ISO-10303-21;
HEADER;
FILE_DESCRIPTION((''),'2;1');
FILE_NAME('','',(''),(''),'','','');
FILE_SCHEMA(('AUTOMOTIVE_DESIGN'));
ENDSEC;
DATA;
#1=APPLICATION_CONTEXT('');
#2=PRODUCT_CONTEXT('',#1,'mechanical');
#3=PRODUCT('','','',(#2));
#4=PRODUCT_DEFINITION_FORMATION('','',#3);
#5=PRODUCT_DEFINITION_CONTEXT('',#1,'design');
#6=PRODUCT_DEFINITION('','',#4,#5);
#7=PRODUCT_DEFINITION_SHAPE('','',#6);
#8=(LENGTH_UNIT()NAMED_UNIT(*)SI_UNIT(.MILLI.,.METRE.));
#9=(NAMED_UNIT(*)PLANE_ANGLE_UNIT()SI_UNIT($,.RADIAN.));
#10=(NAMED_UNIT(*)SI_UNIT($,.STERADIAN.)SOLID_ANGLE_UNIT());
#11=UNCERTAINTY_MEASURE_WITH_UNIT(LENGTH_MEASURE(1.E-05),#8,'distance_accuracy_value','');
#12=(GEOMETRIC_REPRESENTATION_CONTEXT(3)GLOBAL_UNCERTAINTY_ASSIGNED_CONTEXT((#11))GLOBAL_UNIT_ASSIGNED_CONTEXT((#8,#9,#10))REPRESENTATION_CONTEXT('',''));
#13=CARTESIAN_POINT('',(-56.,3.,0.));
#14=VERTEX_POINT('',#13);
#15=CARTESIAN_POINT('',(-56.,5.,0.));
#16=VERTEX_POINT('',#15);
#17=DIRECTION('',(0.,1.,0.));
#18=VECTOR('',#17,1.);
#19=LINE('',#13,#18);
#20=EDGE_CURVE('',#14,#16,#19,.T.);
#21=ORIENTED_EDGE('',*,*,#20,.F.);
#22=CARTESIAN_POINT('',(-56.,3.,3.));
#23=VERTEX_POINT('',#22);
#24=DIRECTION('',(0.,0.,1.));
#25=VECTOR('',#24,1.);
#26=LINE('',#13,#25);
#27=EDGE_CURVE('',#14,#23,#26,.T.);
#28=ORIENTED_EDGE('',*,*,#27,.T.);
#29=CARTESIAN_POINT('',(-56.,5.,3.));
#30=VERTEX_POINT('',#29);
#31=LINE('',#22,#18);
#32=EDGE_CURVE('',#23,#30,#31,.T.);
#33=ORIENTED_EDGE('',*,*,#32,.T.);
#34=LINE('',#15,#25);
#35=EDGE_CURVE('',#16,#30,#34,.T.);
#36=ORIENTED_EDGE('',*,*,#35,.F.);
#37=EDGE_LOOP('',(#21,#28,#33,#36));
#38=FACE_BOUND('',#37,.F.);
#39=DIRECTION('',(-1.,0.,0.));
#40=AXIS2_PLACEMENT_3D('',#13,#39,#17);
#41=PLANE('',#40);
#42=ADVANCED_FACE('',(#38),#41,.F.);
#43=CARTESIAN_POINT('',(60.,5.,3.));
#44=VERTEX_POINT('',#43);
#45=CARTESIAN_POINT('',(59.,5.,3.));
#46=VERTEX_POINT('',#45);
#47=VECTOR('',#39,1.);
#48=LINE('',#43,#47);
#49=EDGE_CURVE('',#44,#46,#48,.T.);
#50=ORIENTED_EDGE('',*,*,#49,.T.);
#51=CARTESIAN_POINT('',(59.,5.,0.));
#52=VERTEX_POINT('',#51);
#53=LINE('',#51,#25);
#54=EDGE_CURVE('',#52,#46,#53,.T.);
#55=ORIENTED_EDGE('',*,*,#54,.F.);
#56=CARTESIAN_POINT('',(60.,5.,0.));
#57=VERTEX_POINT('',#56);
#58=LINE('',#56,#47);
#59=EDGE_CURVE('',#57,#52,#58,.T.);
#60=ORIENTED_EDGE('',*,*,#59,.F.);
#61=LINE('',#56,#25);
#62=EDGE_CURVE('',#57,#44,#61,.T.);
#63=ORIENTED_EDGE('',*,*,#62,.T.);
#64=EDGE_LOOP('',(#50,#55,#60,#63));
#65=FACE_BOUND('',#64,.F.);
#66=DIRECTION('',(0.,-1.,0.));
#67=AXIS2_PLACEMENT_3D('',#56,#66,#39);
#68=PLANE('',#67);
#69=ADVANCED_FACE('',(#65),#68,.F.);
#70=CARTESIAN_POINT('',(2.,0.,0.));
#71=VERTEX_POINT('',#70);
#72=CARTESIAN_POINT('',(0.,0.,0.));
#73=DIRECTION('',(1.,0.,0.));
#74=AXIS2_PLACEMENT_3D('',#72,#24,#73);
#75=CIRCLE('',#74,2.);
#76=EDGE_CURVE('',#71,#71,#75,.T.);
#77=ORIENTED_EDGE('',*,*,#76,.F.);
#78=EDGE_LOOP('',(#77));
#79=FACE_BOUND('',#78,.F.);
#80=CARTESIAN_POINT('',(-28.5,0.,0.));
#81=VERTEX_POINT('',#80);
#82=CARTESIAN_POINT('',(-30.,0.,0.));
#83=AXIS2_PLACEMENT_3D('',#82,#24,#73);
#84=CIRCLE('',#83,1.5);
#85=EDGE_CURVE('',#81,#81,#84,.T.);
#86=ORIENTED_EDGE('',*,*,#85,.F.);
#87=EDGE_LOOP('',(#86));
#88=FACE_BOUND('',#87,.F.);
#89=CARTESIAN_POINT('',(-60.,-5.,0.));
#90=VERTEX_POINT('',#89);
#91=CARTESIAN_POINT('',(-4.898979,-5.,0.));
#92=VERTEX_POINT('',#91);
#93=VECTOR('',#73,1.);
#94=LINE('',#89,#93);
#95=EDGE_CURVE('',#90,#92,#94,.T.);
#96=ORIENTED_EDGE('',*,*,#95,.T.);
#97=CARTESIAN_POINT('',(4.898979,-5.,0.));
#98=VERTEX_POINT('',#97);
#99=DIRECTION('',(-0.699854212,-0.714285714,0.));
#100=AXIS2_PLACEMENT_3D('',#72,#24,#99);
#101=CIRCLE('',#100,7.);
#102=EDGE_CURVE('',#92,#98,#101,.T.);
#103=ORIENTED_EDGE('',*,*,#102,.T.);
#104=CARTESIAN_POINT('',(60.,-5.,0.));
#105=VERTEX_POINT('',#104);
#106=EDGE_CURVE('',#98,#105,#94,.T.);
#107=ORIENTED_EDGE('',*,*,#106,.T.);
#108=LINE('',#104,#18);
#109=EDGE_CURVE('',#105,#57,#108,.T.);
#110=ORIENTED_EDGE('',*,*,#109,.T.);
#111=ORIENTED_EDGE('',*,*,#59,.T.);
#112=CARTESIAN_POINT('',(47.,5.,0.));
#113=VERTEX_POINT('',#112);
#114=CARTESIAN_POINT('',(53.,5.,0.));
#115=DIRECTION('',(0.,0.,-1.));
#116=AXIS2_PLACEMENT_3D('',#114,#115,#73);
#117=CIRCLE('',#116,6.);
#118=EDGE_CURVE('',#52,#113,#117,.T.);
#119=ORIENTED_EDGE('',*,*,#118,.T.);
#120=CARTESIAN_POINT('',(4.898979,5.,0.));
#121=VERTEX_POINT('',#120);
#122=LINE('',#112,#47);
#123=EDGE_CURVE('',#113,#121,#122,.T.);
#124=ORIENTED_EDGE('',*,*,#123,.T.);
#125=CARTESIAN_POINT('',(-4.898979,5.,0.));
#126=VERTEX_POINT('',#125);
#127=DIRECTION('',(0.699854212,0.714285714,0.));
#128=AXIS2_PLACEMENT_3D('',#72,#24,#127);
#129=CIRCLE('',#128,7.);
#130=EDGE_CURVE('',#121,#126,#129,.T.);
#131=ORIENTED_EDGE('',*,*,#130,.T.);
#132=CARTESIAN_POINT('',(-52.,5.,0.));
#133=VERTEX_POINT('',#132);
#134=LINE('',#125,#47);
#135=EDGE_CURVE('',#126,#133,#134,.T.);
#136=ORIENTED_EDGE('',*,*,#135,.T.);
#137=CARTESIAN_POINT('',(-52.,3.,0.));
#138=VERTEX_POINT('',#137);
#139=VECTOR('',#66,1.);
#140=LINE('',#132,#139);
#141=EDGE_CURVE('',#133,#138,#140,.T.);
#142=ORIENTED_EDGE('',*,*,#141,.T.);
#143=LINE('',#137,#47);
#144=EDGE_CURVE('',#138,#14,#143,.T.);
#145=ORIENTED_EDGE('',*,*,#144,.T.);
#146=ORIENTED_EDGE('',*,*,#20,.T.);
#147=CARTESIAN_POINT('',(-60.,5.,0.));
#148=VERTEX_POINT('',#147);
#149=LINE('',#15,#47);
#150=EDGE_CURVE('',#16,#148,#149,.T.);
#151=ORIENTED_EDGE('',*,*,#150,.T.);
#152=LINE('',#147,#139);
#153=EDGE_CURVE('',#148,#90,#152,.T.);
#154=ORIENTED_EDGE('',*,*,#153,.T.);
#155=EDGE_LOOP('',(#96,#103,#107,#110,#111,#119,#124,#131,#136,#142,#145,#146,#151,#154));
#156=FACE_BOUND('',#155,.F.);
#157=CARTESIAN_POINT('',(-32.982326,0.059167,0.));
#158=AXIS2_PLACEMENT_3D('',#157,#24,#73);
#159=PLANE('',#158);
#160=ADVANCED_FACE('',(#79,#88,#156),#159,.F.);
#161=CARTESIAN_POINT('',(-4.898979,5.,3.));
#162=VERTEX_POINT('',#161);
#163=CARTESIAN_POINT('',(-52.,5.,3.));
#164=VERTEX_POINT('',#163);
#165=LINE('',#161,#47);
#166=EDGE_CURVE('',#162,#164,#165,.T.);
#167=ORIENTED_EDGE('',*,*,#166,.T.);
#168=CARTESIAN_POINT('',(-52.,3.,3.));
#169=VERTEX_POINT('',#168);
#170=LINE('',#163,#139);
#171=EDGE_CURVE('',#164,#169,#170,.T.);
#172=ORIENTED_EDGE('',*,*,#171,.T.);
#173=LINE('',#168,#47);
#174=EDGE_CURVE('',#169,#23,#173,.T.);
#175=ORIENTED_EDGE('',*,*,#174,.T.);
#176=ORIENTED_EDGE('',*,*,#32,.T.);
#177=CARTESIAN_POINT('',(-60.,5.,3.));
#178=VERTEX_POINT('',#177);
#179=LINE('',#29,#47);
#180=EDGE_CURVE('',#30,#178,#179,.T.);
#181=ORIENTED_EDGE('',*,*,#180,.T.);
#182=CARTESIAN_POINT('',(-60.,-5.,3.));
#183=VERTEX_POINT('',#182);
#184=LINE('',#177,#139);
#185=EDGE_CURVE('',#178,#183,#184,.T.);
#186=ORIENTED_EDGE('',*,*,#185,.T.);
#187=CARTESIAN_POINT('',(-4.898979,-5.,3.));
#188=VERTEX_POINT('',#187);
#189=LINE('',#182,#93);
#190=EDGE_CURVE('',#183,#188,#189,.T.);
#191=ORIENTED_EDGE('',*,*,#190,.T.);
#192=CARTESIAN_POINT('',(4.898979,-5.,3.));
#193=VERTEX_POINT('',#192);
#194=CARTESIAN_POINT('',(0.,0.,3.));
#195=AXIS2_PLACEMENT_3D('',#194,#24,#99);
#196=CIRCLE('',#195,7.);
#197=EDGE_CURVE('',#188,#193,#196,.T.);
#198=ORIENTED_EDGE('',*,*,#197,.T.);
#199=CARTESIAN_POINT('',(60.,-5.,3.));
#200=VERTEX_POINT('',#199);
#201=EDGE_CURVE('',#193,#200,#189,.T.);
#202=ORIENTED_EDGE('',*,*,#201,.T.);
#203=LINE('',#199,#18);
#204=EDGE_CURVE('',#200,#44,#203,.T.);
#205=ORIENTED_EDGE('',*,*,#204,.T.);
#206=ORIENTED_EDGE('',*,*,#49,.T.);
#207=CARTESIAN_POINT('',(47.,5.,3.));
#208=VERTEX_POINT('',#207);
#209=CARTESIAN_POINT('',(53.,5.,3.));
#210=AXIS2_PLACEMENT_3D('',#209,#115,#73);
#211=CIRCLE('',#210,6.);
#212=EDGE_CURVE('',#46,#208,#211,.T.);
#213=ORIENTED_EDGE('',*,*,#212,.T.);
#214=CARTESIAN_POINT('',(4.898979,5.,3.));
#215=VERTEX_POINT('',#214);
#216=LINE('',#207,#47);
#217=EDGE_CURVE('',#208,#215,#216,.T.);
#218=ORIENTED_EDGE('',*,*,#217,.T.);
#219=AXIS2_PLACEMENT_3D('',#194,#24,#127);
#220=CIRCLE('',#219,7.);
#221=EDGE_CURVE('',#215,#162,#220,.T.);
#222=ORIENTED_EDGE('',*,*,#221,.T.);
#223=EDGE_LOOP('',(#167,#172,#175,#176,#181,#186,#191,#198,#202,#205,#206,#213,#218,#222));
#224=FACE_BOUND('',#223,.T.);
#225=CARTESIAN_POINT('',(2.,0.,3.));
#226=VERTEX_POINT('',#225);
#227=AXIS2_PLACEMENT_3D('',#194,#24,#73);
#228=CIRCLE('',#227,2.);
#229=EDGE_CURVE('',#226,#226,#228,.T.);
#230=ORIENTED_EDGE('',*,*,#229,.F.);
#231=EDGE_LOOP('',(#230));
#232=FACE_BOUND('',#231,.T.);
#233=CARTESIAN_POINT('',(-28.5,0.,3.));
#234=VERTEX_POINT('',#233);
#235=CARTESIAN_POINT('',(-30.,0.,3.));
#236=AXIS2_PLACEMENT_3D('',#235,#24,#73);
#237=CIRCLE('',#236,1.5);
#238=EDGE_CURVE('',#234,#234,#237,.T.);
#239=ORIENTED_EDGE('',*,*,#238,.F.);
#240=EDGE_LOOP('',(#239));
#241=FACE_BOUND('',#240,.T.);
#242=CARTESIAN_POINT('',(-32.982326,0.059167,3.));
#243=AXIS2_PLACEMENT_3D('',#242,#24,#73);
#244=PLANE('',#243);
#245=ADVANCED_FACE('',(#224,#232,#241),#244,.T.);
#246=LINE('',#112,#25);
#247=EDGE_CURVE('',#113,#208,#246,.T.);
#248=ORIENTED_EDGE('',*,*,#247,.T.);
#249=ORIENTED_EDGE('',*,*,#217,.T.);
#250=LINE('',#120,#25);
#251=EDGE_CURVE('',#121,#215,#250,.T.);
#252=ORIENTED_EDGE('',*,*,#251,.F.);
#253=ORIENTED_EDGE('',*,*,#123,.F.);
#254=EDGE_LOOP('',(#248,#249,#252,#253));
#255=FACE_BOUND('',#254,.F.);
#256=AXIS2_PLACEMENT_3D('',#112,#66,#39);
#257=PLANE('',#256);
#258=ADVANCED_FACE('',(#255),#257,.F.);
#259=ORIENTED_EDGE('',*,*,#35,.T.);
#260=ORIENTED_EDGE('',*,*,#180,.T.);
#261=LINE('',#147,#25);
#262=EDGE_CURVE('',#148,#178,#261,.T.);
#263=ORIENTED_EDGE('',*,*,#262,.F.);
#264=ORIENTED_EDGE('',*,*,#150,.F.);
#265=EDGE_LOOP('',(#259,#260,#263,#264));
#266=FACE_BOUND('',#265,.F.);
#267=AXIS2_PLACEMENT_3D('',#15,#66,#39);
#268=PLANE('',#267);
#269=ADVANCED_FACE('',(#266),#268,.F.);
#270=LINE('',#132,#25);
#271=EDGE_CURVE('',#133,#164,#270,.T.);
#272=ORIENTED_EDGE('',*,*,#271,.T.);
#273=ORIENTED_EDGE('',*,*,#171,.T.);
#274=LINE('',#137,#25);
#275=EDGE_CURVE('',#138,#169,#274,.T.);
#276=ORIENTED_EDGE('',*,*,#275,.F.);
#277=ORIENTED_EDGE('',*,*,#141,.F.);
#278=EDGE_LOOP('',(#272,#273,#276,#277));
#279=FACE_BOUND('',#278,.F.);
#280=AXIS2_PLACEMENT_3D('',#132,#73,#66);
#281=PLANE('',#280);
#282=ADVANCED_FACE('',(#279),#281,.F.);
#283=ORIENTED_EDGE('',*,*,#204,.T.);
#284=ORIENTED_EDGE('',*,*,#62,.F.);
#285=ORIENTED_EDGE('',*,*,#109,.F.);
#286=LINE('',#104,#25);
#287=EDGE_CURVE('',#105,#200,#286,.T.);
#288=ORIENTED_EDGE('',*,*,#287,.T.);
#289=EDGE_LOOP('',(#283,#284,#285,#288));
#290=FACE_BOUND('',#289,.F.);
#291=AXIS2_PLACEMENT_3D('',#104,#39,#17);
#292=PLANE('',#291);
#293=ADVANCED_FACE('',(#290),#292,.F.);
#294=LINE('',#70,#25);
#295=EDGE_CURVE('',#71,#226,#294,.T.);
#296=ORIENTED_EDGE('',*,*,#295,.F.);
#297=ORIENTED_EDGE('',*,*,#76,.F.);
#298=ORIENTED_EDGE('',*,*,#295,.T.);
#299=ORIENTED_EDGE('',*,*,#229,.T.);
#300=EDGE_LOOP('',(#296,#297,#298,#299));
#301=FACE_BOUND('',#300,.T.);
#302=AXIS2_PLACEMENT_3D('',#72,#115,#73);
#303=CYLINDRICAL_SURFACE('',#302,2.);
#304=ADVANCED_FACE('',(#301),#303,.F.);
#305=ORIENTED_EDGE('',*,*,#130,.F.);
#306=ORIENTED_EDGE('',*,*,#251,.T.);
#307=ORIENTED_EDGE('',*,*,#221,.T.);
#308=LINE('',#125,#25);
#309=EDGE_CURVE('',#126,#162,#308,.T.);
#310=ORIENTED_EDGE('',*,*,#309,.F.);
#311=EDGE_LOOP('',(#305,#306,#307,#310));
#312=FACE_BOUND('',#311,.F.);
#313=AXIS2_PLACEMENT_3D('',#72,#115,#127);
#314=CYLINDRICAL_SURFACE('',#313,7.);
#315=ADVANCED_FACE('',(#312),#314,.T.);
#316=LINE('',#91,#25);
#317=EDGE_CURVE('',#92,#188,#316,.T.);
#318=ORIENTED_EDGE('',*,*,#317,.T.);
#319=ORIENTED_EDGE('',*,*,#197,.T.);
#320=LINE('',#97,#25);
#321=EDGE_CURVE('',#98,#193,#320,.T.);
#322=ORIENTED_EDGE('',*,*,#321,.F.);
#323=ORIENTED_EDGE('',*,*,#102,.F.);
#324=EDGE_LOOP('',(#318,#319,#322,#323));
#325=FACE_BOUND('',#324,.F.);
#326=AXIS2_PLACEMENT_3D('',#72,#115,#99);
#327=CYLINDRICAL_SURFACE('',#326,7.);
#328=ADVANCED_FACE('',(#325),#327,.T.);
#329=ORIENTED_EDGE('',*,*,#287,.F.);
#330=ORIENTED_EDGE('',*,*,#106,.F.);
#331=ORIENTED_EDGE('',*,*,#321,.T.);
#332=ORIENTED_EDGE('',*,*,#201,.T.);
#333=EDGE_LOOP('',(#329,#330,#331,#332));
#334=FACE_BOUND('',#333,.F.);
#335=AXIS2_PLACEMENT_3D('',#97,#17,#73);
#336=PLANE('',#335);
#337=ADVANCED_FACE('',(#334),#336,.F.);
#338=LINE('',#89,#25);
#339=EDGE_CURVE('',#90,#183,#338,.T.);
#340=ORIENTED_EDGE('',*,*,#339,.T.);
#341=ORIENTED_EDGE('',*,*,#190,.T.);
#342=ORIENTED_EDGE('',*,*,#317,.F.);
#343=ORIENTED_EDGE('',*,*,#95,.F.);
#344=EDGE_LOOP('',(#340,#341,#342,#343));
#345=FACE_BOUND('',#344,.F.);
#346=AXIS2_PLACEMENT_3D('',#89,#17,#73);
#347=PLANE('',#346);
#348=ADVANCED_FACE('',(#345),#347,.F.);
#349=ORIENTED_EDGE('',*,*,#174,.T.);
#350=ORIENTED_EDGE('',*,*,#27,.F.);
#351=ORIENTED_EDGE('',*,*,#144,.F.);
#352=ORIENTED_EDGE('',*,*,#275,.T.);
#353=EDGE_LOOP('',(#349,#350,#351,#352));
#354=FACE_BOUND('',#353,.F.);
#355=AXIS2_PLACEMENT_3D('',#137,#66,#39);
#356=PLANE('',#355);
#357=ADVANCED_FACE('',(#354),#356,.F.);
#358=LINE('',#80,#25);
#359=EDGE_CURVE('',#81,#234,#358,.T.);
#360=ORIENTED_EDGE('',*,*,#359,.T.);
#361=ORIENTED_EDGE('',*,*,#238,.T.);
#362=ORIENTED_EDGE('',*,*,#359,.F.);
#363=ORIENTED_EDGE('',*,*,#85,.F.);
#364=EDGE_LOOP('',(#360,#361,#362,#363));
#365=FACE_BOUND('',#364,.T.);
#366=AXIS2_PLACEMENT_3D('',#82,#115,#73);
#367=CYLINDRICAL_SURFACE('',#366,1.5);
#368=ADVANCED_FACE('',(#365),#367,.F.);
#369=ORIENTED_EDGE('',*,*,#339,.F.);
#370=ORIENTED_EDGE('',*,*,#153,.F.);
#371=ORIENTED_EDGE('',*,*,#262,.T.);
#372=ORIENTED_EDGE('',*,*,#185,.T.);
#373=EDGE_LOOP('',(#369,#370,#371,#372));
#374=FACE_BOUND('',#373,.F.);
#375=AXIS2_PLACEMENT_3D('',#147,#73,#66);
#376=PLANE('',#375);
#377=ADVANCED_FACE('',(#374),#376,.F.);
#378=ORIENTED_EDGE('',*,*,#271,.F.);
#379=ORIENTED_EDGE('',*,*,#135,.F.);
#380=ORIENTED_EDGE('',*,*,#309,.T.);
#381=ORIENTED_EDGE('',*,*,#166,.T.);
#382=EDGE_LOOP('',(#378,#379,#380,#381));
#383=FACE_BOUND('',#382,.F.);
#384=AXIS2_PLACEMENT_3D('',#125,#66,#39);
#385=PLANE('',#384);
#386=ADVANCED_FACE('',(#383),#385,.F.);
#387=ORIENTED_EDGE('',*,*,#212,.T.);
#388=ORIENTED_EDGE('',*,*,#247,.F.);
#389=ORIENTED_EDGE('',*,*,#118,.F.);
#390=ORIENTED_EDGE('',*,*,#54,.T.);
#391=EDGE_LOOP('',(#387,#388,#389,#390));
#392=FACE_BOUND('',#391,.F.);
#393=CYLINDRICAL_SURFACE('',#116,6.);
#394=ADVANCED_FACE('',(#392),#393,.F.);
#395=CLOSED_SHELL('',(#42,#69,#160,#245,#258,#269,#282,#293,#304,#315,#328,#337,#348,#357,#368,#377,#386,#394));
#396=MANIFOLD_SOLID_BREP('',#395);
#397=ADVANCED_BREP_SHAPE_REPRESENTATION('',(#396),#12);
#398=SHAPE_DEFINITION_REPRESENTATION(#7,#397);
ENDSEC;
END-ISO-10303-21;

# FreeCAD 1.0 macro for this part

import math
import FreeCAD as App
import Part
import Sketcher

doc = App.newDocument("Part")
body = doc.addObject("PartDesign::Body", "Body")

# Sketch on XY plane
sketch1 = body.newObject("Sketcher::SketchObject", "Sketch")
sketch1.AttachmentSupport = (doc.getObject("XY_Plane"), [""])
sketch1.MapMode = "FlatFace"
sketch1.addGeometry([
    Part.LineSegment(App.Vector(-60, -5, 0), App.Vector(-4.9, -5, 0)),  # 0
    Part.ArcOfCircle(Part.Circle(App.Vector(0, 0, 0), App.Vector(0, 0, 1), 7), math.radians(-134), math.radians(-46)),  # 1
    Part.LineSegment(App.Vector(4.9, -5, 0), App.Vector(60, -5, 0)),  # 2
    Part.LineSegment(App.Vector(60, -5, 0), App.Vector(60, 5, 0)),  # 3
    Part.LineSegment(App.Vector(60, 5, 0), App.Vector(59, 5, 0)),  # 4
    Part.ArcOfCircle(Part.Circle(App.Vector(53, 5, 0), App.Vector(0, 0, 1), 6), math.radians(180), math.radians(360)),  # 5
    Part.LineSegment(App.Vector(47, 5, 0), App.Vector(4.9, 5, 0)),  # 6
    Part.ArcOfCircle(Part.Circle(App.Vector(0, 0, 0), App.Vector(0, 0, 1), 7), math.radians(46), math.radians(134)),  # 7
    Part.LineSegment(App.Vector(-4.9, 5, 0), App.Vector(-52, 5, 0)),  # 8
    Part.LineSegment(App.Vector(-52, 5, 0), App.Vector(-52, 3, 0)),  # 9
    Part.LineSegment(App.Vector(-52, 3, 0), App.Vector(-56, 3, 0)),  # 10
    Part.LineSegment(App.Vector(-56, 3, 0), App.Vector(-56, 5, 0)),  # 11
    Part.LineSegment(App.Vector(-56, 5, 0), App.Vector(-60, 5, 0)),  # 12
    Part.LineSegment(App.Vector(-60, 5, 0), App.Vector(-60, -5, 0)),  # 13
    Part.Circle(App.Vector(-30, 0, 0), App.Vector(0, 0, 1), 1.5),  # 14
    Part.Circle(App.Vector(0, 0, 0), App.Vector(0, 0, 1), 2),  # 15
], False)
sketch1.addConstraint([
    Sketcher.Constraint("Coincident", 0, 2, 1, 1),
    Sketcher.Constraint("Coincident", 1, 2, 2, 1),
    Sketcher.Constraint("Coincident", 2, 2, 3, 1),
    Sketcher.Constraint("Coincident", 3, 2, 4, 1),
    Sketcher.Constraint("Coincident", 4, 2, 5, 2),
    Sketcher.Constraint("Coincident", 5, 1, 6, 1),
    Sketcher.Constraint("Coincident", 6, 2, 7, 1),
    Sketcher.Constraint("Coincident", 7, 2, 8, 1),
    Sketcher.Constraint("Coincident", 8, 2, 9, 1),
    Sketcher.Constraint("Coincident", 9, 2, 10, 1),
    Sketcher.Constraint("Coincident", 10, 2, 11, 1),
    Sketcher.Constraint("Coincident", 11, 2, 12, 1),
    Sketcher.Constraint("Coincident", 12, 2, 13, 1),
    Sketcher.Constraint("Coincident", 13, 2, 0, 1),
    Sketcher.Constraint("Horizontal", 0),
    Sketcher.Constraint("Horizontal", 2),
    Sketcher.Constraint("Vertical", 3),
    Sketcher.Constraint("Horizontal", 4),
    Sketcher.Constraint("Horizontal", 6),
    Sketcher.Constraint("Horizontal", 8),
    Sketcher.Constraint("Vertical", 9),
    Sketcher.Constraint("Horizontal", 10),
    Sketcher.Constraint("Vertical", 11),
    Sketcher.Constraint("Horizontal", 12),
    Sketcher.Constraint("Vertical", 13),
    Sketcher.Constraint("Coincident", 1, 3, -1, 1),
    Sketcher.Constraint("Coincident", 7, 3, -1, 1),
    Sketcher.Constraint("Coincident", 15, 3, -1, 1),
    Sketcher.Constraint("Equal", 1, 7),
    Sketcher.Constraint("Symmetric", 2, 2, 12, 2, -1, 1),
    Sketcher.Constraint("PointOnObject", 14, 3, -1),
    Sketcher.Constraint("Horizontal", 0, 2, 1, 2),
    Sketcher.Constraint("Horizontal", 5, 3, 3, 2),
    Sketcher.Constraint("Horizontal", 4, 2, 5, 1),
    Sketcher.Constraint("Horizontal", 6, 2, 7, 2),
    Sketcher.Constraint("Horizontal", 8, 2, 11, 2),
    Sketcher.Constraint("Equal", 10, 12),
    Sketcher.Constraint("Diameter", 14, 3.0),
    Sketcher.Constraint("Diameter", 15, 4.0),
    Sketcher.Constraint("Radius", 1, 7.0),
    Sketcher.Constraint("Radius", 5, 6.0),
    Sketcher.Constraint("DistanceX", 4, 2, 4, 1, 1.0),
    Sketcher.Constraint("DistanceX", 10, 2, 10, 1, 4.0),
    Sketcher.Constraint("DistanceY", 3, 1, 3, 2, 10.0),
    Sketcher.Constraint("DistanceY", 9, 2, 9, 1, 2.0),
    Sketcher.Constraint("DistanceX", -1, 1, 5, 3, 53.0),
    Sketcher.Constraint("DistanceX", 14, 3, -1, 1, 30.0),
])
pad1 = body.newObject("PartDesign::Pad", "Pad")
pad1.Profile = sketch1
pad1.Length = 3

doc.recompute()
